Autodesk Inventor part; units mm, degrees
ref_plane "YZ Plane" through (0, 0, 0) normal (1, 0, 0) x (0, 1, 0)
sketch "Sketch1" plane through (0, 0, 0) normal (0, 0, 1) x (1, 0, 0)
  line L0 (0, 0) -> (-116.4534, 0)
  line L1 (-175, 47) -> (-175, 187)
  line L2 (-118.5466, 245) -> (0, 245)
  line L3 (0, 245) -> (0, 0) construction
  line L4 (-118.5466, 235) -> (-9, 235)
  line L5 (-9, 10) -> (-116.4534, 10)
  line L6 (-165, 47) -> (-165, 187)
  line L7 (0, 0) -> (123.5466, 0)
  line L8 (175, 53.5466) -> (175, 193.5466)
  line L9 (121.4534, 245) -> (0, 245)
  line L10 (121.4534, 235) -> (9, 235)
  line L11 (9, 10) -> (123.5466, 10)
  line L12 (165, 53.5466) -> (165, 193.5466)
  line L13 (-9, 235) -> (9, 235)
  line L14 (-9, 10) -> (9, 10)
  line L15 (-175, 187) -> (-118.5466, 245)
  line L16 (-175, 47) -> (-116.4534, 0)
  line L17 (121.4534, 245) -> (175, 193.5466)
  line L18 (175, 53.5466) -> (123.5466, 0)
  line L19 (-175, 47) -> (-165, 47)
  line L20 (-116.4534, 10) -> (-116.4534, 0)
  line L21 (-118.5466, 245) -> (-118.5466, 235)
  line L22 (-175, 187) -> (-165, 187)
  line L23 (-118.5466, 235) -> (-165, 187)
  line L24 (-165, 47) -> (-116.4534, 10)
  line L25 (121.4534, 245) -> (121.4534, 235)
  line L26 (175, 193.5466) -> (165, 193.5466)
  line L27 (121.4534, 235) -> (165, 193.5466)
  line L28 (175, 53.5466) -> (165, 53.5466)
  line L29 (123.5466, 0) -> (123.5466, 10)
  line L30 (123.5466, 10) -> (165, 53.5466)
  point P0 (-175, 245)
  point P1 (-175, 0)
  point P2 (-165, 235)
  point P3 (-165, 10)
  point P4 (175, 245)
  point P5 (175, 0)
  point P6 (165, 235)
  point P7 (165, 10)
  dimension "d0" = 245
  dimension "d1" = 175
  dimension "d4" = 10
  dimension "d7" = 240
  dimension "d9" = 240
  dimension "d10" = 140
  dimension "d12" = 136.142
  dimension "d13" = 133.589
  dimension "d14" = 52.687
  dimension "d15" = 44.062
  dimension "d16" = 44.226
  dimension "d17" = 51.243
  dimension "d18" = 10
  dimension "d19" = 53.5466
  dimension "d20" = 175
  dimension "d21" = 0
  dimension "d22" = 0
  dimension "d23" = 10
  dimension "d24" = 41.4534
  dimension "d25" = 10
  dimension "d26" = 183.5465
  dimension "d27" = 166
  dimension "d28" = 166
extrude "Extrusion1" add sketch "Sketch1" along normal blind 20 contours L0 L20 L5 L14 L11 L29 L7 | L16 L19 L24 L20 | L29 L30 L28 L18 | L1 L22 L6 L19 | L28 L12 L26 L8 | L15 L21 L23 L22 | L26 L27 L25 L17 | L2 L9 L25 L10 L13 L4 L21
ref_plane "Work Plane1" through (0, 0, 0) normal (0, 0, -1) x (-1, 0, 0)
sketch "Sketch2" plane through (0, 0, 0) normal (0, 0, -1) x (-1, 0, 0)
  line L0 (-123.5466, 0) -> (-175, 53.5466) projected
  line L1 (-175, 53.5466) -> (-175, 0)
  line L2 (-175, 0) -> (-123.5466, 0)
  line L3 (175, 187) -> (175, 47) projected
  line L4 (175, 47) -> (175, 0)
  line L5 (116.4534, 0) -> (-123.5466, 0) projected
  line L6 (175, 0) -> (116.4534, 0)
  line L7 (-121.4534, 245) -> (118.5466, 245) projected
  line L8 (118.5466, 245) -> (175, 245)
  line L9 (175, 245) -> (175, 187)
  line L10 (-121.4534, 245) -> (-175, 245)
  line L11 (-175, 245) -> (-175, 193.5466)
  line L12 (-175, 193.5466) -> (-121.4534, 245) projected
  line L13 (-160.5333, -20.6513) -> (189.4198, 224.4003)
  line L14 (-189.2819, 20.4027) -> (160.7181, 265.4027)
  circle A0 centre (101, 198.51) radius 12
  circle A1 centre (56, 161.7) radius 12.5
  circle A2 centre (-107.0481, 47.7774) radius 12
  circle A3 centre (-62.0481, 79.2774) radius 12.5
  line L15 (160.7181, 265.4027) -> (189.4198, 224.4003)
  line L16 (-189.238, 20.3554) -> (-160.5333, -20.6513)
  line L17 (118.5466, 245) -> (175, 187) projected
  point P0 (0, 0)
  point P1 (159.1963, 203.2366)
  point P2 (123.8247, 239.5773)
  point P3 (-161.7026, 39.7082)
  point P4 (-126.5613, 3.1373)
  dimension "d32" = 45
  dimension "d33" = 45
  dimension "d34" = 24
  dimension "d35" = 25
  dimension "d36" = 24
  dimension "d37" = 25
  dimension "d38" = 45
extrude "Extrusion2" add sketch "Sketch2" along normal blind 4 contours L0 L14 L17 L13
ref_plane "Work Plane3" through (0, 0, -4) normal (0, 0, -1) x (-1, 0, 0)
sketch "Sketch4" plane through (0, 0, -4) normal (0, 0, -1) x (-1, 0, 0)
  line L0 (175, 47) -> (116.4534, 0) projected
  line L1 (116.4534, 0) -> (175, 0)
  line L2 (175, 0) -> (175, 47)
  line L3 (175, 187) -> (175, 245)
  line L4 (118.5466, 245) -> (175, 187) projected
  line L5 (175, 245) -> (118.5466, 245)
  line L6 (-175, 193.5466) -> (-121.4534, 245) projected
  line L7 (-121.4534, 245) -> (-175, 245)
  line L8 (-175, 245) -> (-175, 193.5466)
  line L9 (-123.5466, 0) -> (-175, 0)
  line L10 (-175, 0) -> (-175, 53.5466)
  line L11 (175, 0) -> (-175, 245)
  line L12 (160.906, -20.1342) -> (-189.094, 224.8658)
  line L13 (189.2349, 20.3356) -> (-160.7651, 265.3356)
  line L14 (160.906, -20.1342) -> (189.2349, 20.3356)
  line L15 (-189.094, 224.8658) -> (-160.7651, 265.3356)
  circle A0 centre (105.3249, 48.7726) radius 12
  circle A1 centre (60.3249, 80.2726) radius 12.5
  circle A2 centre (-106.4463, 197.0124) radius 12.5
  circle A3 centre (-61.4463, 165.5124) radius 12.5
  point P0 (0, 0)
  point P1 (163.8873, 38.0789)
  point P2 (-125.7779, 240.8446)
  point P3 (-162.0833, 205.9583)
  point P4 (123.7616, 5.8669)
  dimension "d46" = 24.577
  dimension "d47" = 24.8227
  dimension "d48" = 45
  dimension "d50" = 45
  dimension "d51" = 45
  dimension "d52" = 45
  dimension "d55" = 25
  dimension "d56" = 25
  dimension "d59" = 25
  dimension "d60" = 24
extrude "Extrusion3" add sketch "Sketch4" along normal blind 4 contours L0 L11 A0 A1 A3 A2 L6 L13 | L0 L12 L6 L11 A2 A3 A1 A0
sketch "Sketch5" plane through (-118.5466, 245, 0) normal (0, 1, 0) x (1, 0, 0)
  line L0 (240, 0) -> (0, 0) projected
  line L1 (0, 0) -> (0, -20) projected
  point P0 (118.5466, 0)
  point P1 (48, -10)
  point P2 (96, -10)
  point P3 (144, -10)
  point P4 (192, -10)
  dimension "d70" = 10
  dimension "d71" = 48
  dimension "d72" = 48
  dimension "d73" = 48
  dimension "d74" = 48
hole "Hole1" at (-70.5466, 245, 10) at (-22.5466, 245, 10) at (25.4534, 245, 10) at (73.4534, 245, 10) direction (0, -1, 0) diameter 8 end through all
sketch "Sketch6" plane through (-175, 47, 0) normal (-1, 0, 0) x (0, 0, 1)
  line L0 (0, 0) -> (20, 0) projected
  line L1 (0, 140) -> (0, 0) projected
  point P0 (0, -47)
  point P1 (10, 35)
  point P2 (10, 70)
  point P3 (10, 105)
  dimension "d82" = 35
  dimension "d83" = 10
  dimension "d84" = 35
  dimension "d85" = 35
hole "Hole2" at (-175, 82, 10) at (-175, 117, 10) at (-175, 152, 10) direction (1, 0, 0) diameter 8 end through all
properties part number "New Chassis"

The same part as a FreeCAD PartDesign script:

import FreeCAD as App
import Part
import Sketcher
Q = App.Units.Quantity

doc = App.newDocument("Part")
params = doc.addObject("Spreadsheet::Sheet", "Params")
for row, (alias, value) in enumerate([
    ("sketch1_width", "240 mm"),
    ("sketch1_height", "140 mm"),
    ("pad1_length", "20 mm"),
    ("sketch2_diameter", "24 mm"),
    ("sketch2_diameter2", "25 mm"),
    ("sketch2_diameter3", "25 mm"),
    ("sketch2_diameter4", "24 mm"),
    ("pad2_length", "4 mm"),
    ("sketch3_diameter", "24 mm"),
    ("sketch3_diameter2", "25 mm"),
    ("sketch3_length", "50.35 mm"),
    ("pad3_length", "4 mm"),
    ("sketch4_diameter", "8 mm"),
    ("hole_diameter", "8 mm"),
    ("sketch5_diameter", "8 mm"),
    ("hole2_diameter", "8 mm"),
], start=1):
    params.set(f"A{row}", alias)
    params.set(f"B{row}", "=" + value)
    params.setAlias(f"B{row}", alias)

body = doc.addObject("PartDesign::Body", "Body")

# Sketch on XY plane
sketch1 = body.newObject("Sketcher::SketchObject", "Sketch")
sketch1.AttachmentSupport = (doc.getObject("XY_Plane"), [""])
sketch1.MapMode = "FlatFace"
sketch1.addGeometry([
    Part.LineSegment(App.Vector(-116, 0, 0), App.Vector(124, 0, 0)),  # 0
    Part.LineSegment(App.Vector(124, 0, 0), App.Vector(175, 54, 0)),  # 1
    Part.LineSegment(App.Vector(175, 54, 0), App.Vector(175, 194, 0)),  # 2
    Part.LineSegment(App.Vector(175, 194, 0), App.Vector(121, 245, 0)),  # 3
    Part.LineSegment(App.Vector(121, 245, 0), App.Vector(-119, 245, 0)),  # 4
    Part.LineSegment(App.Vector(-119, 245, 0), App.Vector(-175, 187, 0)),  # 5
    Part.LineSegment(App.Vector(-175, 187, 0), App.Vector(-175, 47, 0)),  # 6
    Part.LineSegment(App.Vector(-175, 47, 0), App.Vector(-116, 0, 0)),  # 7
    Part.LineSegment(App.Vector(-116, 10, 0), App.Vector(-165, 47, 0)),  # 8
    Part.LineSegment(App.Vector(-165, 47, 0), App.Vector(-165, 187, 0)),  # 9
    Part.LineSegment(App.Vector(-165, 187, 0), App.Vector(-119, 235, 0)),  # 10
    Part.LineSegment(App.Vector(-119, 235, 0), App.Vector(121, 235, 0)),  # 11
    Part.LineSegment(App.Vector(121, 235, 0), App.Vector(165, 194, 0)),  # 12
    Part.LineSegment(App.Vector(165, 194, 0), App.Vector(165, 54, 0)),  # 13
    Part.LineSegment(App.Vector(165, 54, 0), App.Vector(124, 10, 0)),  # 14
    Part.LineSegment(App.Vector(124, 10, 0), App.Vector(-116, 10, 0)),  # 15
], False)
sketch1.addConstraint([
    Sketcher.Constraint("Coincident", 0, 2, 1, 1),
    Sketcher.Constraint("Coincident", 1, 2, 2, 1),
    Sketcher.Constraint("Coincident", 2, 2, 3, 1),
    Sketcher.Constraint("Coincident", 3, 2, 4, 1),
    Sketcher.Constraint("Coincident", 4, 2, 5, 1),
    Sketcher.Constraint("Coincident", 5, 2, 6, 1),
    Sketcher.Constraint("Coincident", 6, 2, 7, 1),
    Sketcher.Constraint("Coincident", 7, 2, 0, 1),
    Sketcher.Constraint("Coincident", 8, 2, 9, 1),
    Sketcher.Constraint("Coincident", 9, 2, 10, 1),
    Sketcher.Constraint("Coincident", 10, 2, 11, 1),
    Sketcher.Constraint("Coincident", 11, 2, 12, 1),
    Sketcher.Constraint("Coincident", 12, 2, 13, 1),
    Sketcher.Constraint("Coincident", 13, 2, 14, 1),
    Sketcher.Constraint("Coincident", 14, 2, 15, 1),
    Sketcher.Constraint("Coincident", 15, 2, 8, 1),
    Sketcher.Constraint("Horizontal", 0),
    Sketcher.Constraint("Vertical", 2),
    Sketcher.Constraint("Horizontal", 4),
    Sketcher.Constraint("Vertical", 6),
    Sketcher.Constraint("Vertical", 9),
    Sketcher.Constraint("Horizontal", 11),
    Sketcher.Constraint("Vertical", 13),
    Sketcher.Constraint("Horizontal", 15),
    Sketcher.Constraint("PointOnObject", 0, 2, -1),
    Sketcher.Constraint("Perpendicular", 1, 3),
    Sketcher.Constraint("Perpendicular", 12, 14),
    Sketcher.Constraint("Horizontal", 6, 2, 8, 2),
    Sketcher.Constraint("Horizontal", 5, 2, 9, 2),
    Sketcher.Constraint("Horizontal", 2, 2, 12, 2),
    Sketcher.Constraint("Horizontal", 1, 2, 13, 2),
    Sketcher.Constraint("Vertical", 4, 2, 10, 2),
    Sketcher.Constraint("Vertical", 3, 2, 11, 2),
    Sketcher.Constraint("Vertical", 0, 2, 14, 2),
    Sketcher.Constraint("Vertical", 7, 2, 15, 2),
    Sketcher.Constraint("Equal", 0, 4),
    Sketcher.Constraint("Equal", 2, 6),
    Sketcher.Constraint("Equal", 1, 3),
    Sketcher.Constraint("Equal", 12, 14),
    Sketcher.Constraint("DistanceX", 0, 1, 0, 2, Q("240 mm")),
    Sketcher.Constraint("DistanceY", 2, 1, 2, 2, Q("140 mm")),
    Sketcher.Constraint("DistanceX", -1, 1, 1, 2, Q("175 mm")),
    Sketcher.Constraint("DistanceY", -1, 1, 3, 2, Q("245 mm")),
    Sketcher.Constraint("DistanceX", 5, 2, -1, 1, Q("175 mm")),
    Sketcher.Constraint("DistanceY", -1, 1, 14, 2, Q("10 mm")),
    Sketcher.Constraint("DistanceX", 6, 2, 8, 2, Q("10 mm")),
    Sketcher.Constraint("Angle", 14, Q("-133.5893 deg")),
    Sketcher.Constraint("DistanceY", -1, 1, 5, 2, Q("187 mm")),
])
sketch1.setExpression("Constraints[39]", "Params.sketch1_width")
sketch1.setExpression("Constraints[40]", "Params.sketch1_height")
pad1 = body.newObject("PartDesign::Pad", "Pad")
pad1.Profile = sketch1
pad1.setExpression("Length", "Params.pad1_length")

# Sketch on XY plane
sketch2 = body.newObject("Sketcher::SketchObject", "Sketch001")
sketch2.AttachmentSupport = (doc.getObject("XY_Plane"), [""])
sketch2.MapMode = "FlatFace"
sketch2.addGeometry([
    Part.LineSegment(App.Vector(161.702581, 39.708223, 0), App.Vector(126.561273, 3.137315, 0)),  # 0
    Part.LineSegment(App.Vector(126.561273, 3.137315, 0), App.Vector(-159.196358, 203.236599, 0)),  # 1
    Part.LineSegment(App.Vector(-159.196358, 203.236599, 0), App.Vector(-123.824689, 239.577312, 0)),  # 2
    Part.LineSegment(App.Vector(-123.824689, 239.577312, 0), App.Vector(161.702581, 39.708223, 0)),  # 3
    Part.Circle(App.Vector(107.0481, 47.7774, 0), App.Vector(0, 0, 1), 12),  # 4
    Part.Circle(App.Vector(62.0481, 79.2774, 0), App.Vector(0, 0, 1), 12.5),  # 5
    Part.Circle(App.Vector(-56, 161.7, 0), App.Vector(0, 0, 1), 12.5),  # 6
    Part.Circle(App.Vector(-101, 198.51, 0), App.Vector(0, 0, 1), 12),  # 7
], False)
sketch2.addConstraint([
    Sketcher.Constraint("Coincident", 0, 2, 1, 1),
    Sketcher.Constraint("Coincident", 1, 2, 2, 1),
    Sketcher.Constraint("Coincident", 2, 2, 3, 1),
    Sketcher.Constraint("Coincident", 3, 2, 0, 1),
    Sketcher.Constraint("Diameter", 4, Q("24 mm")),
    Sketcher.Constraint("Diameter", 5, Q("25 mm")),
    Sketcher.Constraint("Diameter", 6, Q("25 mm")),
    Sketcher.Constraint("Diameter", 7, Q("24 mm")),
    Sketcher.Constraint("DistanceX", 5, 3, 4, 3, Q("45 mm")),
    Sketcher.Constraint("DistanceX", 7, 3, 6, 3, Q("45 mm")),
    Sketcher.Constraint("DistanceX", 6, 3, -1, 1, Q("56 mm")),
    Sketcher.Constraint("DistanceY", -1, 1, 6, 3, Q("161.7 mm")),
    Sketcher.Constraint("DistanceY", 4, 3, 5, 3, Q("31.5 mm")),
    Sketcher.Constraint("DistanceY", 5, 3, 2, 2, Q("160.3 mm")),
    Sketcher.Constraint("DistanceY", -1, 1, 7, 3, Q("198.51 mm")),
    Sketcher.Constraint("DistanceY", 0, 2, 4, 3, Q("44.64 mm")),
    Sketcher.Constraint("Distance", 2, Q("50.713 mm")),
    Sketcher.Constraint("DistanceX", -1, 1, 4, 3, Q("107.048 mm")),
    Sketcher.Constraint("DistanceY", 0, 2, 3, 2, Q("36.571 mm")),
    Sketcher.Constraint("Distance", 0, Q("50.7183 mm")),
    Sketcher.Constraint("Distance", 1, Q("348.8512 mm")),
    Sketcher.Constraint("Distance", 3, Q("348.5305 mm")),
    Sketcher.Constraint("DistanceY", -1, 1, 4, 3, Q("47.7774 mm")),
    Sketcher.Constraint("DistanceX", -1, 1, 0, 2, Q("126.5613 mm")),
])
sketch2.setExpression("Constraints[4]", "Params.sketch2_diameter")
sketch2.setExpression("Constraints[5]", "Params.sketch2_diameter2")
sketch2.setExpression("Constraints[6]", "Params.sketch2_diameter3")
sketch2.setExpression("Constraints[7]", "Params.sketch2_diameter4")
pad2 = body.newObject("PartDesign::Pad", "Pad001")
pad2.Profile = sketch2
pad2.setExpression("Length", "Params.pad2_length")
pad2.Reversed = True

# Sketch on XY plane
sketch3 = body.newObject("Sketcher::SketchObject", "Sketch002")
sketch3.AttachmentSupport = (doc.getObject("XY_Plane"), [""])
sketch3.MapMode = "FlatFace"
sketch3.AttachmentOffset = App.Placement(App.Vector(0, 0, -4), App.Rotation())
sketch3.addGeometry([
    Part.LineSegment(App.Vector(-164, 38, 0), App.Vector(126, 241, 0)),  # 0
    Part.LineSegment(App.Vector(126, 241, 0), App.Vector(162, 206, 0)),  # 1
    Part.LineSegment(App.Vector(162, 206, 0), App.Vector(-124, 6, 0)),  # 2
    Part.LineSegment(App.Vector(-124, 6, 0), App.Vector(-164, 38, 0)),  # 3
    Part.Circle(App.Vector(-105, 49, 0), App.Vector(0, 0, 1), 12),  # 4
    Part.Circle(App.Vector(-60, 80, 0), App.Vector(0, 0, 1), 12),  # 5
    Part.Circle(App.Vector(61, 166, 0), App.Vector(0, 0, 1), 12),  # 6
    Part.Circle(App.Vector(106, 197, 0), App.Vector(0, 0, 1), 12),  # 7
], False)
sketch3.addConstraint([
    Sketcher.Constraint("Coincident", 0, 2, 1, 1),
    Sketcher.Constraint("Coincident", 1, 2, 2, 1),
    Sketcher.Constraint("Coincident", 2, 2, 3, 1),
    Sketcher.Constraint("Coincident", 3, 2, 0, 1),
    Sketcher.Constraint("Equal", 5, 6),
    Sketcher.Constraint("Equal", 6, 7),
    Sketcher.Constraint("Parallel", 0, 2),
    Sketcher.Constraint("Diameter", 4, Q("24 mm")),
    Sketcher.Constraint("Diameter", 5, Q("25 mm")),
    Sketcher.Constraint("DistanceX", 4, 3, 5, 3, Q("45 mm")),
    Sketcher.Constraint("DistanceX", 6, 3, 7, 3, Q("45 mm")),
    Sketcher.Constraint("DistanceY", 4, 3, 5, 3, Q("31.5 mm")),
    Sketcher.Constraint("DistanceY", 6, 3, 7, 3, Q("31.5 mm")),
    Sketcher.Constraint("Distance", 1, Q("50.35 mm")),
    Sketcher.Constraint("DistanceX", 4, 3, -1, 1, Q("105.325 mm")),
    Sketcher.Constraint("DistanceX", -1, 1, 0, 2, Q("125.778 mm")),
    Sketcher.Constraint("DistanceY", -1, 1, 3, 2, Q("38.079 mm")),
    Sketcher.Constraint("DistanceY", 5, 3, 0, 2, Q("160.572 mm")),
    Sketcher.Constraint("DistanceX", 7, 3, 1, 2, Q("55.637 mm")),
    Sketcher.Constraint("DistanceY", 7, 3, 1, 2, Q("8.946 mm")),
    Sketcher.Constraint("DistanceX", 2, 2, 6, 3, Q("185.208 mm")),
    Sketcher.Constraint("DistanceY", 2, 2, 3, 2, Q("32.212 mm")),
    Sketcher.Constraint("Distance", 0, Q("353.5814 mm")),
    Sketcher.Constraint("Distance", 2, Q("348.9182 mm")),
])
sketch3.setExpression("Constraints[7]", "Params.sketch3_diameter")
sketch3.setExpression("Constraints[8]", "Params.sketch3_diameter2")
sketch3.setExpression("Constraints[13]", "Params.sketch3_length")
pad3 = body.newObject("PartDesign::Pad", "Pad002")
pad3.Profile = sketch3
pad3.setExpression("Length", "Params.pad3_length")
pad3.Reversed = True

# Sketch on XZ plane
sketch4 = body.newObject("Sketcher::SketchObject", "Sketch003")
sketch4.AttachmentSupport = (doc.getObject("XZ_Plane"), [""])
sketch4.MapMode = "FlatFace"
sketch4.AttachmentOffset = App.Placement(App.Vector(0, 0, -245), App.Rotation())
sketch4.addGeometry([
    Part.Circle(App.Vector(-70.5, 10, 0), App.Vector(0, 0, 1), 4),
    Part.Circle(App.Vector(-22.5, 10, 0), App.Vector(0, 0, 1), 4),
    Part.Circle(App.Vector(25.5, 10, 0), App.Vector(0, 0, 1), 4),
    Part.Circle(App.Vector(73.5, 10, 0), App.Vector(0, 0, 1), 4),
], False)
sketch4.addConstraint([
    Sketcher.Constraint("Equal", 0, 1),
    Sketcher.Constraint("Equal", 1, 2),
    Sketcher.Constraint("Equal", 2, 3),
    Sketcher.Constraint("Horizontal", 0, 3, 1, 3),
    Sketcher.Constraint("Horizontal", 1, 3, 2, 3),
    Sketcher.Constraint("Horizontal", 2, 3, 3, 3),
    Sketcher.Constraint("Diameter", 0, Q("8 mm")),
    Sketcher.Constraint("DistanceY", -1, 1, 0, 3, Q("10 mm")),
    Sketcher.Constraint("DistanceX", 0, 3, 1, 3, Q("48 mm")),
    Sketcher.Constraint("DistanceX", 1, 3, 2, 3, Q("48 mm")),
    Sketcher.Constraint("DistanceX", 2, 3, 3, 3, Q("48 mm")),
    Sketcher.Constraint("DistanceX", 0, 3, -1, 1, Q("70.5466 mm")),
])
sketch4.setExpression("Constraints[6]", "Params.sketch4_diameter")
doc.recompute()
hole = body.newObject("PartDesign::Hole", "Hole")
hole.Profile = sketch4
hole.ThreadType = "None"
hole.setExpression("Diameter", "Params.hole_diameter")
hole.DepthType = "ThroughAll"
hole.Reversed = True

# Sketch on YZ plane
sketch5 = body.newObject("Sketcher::SketchObject", "Sketch004")
sketch5.AttachmentSupport = (doc.getObject("YZ_Plane"), [""])
sketch5.MapMode = "FlatFace"
sketch5.AttachmentOffset = App.Placement(App.Vector(0, 0, -175), App.Rotation())
sketch5.addGeometry([
    Part.Circle(App.Vector(82, 10, 0), App.Vector(0, 0, 1), 4),
    Part.Circle(App.Vector(117, 10, 0), App.Vector(0, 0, 1), 4),
    Part.Circle(App.Vector(152, 10, 0), App.Vector(0, 0, 1), 4),
], False)
sketch5.addConstraint([
    Sketcher.Constraint("Equal", 0, 1),
    Sketcher.Constraint("Equal", 1, 2),
    Sketcher.Constraint("Horizontal", 0, 3, 1, 3),
    Sketcher.Constraint("Horizontal", 1, 3, 2, 3),
    Sketcher.Constraint("Diameter", 0, Q("8 mm")),
    Sketcher.Constraint("DistanceX", -1, 1, 0, 3, Q("82 mm")),
    Sketcher.Constraint("DistanceY", -1, 1, 0, 3, Q("10 mm")),
    Sketcher.Constraint("DistanceX", -1, 1, 1, 3, Q("117 mm")),
    Sketcher.Constraint("DistanceX", -1, 1, 2, 3, Q("152 mm")),
])
sketch5.setExpression("Constraints[4]", "Params.sketch5_diameter")
doc.recompute()
hole2 = body.newObject("PartDesign::Hole", "Hole001")
hole2.Profile = sketch5
hole2.ThreadType = "None"
hole2.setExpression("Diameter", "Params.hole2_diameter")
hole2.DepthType = "ThroughAll"
hole2.Reversed = True

doc.recompute()
